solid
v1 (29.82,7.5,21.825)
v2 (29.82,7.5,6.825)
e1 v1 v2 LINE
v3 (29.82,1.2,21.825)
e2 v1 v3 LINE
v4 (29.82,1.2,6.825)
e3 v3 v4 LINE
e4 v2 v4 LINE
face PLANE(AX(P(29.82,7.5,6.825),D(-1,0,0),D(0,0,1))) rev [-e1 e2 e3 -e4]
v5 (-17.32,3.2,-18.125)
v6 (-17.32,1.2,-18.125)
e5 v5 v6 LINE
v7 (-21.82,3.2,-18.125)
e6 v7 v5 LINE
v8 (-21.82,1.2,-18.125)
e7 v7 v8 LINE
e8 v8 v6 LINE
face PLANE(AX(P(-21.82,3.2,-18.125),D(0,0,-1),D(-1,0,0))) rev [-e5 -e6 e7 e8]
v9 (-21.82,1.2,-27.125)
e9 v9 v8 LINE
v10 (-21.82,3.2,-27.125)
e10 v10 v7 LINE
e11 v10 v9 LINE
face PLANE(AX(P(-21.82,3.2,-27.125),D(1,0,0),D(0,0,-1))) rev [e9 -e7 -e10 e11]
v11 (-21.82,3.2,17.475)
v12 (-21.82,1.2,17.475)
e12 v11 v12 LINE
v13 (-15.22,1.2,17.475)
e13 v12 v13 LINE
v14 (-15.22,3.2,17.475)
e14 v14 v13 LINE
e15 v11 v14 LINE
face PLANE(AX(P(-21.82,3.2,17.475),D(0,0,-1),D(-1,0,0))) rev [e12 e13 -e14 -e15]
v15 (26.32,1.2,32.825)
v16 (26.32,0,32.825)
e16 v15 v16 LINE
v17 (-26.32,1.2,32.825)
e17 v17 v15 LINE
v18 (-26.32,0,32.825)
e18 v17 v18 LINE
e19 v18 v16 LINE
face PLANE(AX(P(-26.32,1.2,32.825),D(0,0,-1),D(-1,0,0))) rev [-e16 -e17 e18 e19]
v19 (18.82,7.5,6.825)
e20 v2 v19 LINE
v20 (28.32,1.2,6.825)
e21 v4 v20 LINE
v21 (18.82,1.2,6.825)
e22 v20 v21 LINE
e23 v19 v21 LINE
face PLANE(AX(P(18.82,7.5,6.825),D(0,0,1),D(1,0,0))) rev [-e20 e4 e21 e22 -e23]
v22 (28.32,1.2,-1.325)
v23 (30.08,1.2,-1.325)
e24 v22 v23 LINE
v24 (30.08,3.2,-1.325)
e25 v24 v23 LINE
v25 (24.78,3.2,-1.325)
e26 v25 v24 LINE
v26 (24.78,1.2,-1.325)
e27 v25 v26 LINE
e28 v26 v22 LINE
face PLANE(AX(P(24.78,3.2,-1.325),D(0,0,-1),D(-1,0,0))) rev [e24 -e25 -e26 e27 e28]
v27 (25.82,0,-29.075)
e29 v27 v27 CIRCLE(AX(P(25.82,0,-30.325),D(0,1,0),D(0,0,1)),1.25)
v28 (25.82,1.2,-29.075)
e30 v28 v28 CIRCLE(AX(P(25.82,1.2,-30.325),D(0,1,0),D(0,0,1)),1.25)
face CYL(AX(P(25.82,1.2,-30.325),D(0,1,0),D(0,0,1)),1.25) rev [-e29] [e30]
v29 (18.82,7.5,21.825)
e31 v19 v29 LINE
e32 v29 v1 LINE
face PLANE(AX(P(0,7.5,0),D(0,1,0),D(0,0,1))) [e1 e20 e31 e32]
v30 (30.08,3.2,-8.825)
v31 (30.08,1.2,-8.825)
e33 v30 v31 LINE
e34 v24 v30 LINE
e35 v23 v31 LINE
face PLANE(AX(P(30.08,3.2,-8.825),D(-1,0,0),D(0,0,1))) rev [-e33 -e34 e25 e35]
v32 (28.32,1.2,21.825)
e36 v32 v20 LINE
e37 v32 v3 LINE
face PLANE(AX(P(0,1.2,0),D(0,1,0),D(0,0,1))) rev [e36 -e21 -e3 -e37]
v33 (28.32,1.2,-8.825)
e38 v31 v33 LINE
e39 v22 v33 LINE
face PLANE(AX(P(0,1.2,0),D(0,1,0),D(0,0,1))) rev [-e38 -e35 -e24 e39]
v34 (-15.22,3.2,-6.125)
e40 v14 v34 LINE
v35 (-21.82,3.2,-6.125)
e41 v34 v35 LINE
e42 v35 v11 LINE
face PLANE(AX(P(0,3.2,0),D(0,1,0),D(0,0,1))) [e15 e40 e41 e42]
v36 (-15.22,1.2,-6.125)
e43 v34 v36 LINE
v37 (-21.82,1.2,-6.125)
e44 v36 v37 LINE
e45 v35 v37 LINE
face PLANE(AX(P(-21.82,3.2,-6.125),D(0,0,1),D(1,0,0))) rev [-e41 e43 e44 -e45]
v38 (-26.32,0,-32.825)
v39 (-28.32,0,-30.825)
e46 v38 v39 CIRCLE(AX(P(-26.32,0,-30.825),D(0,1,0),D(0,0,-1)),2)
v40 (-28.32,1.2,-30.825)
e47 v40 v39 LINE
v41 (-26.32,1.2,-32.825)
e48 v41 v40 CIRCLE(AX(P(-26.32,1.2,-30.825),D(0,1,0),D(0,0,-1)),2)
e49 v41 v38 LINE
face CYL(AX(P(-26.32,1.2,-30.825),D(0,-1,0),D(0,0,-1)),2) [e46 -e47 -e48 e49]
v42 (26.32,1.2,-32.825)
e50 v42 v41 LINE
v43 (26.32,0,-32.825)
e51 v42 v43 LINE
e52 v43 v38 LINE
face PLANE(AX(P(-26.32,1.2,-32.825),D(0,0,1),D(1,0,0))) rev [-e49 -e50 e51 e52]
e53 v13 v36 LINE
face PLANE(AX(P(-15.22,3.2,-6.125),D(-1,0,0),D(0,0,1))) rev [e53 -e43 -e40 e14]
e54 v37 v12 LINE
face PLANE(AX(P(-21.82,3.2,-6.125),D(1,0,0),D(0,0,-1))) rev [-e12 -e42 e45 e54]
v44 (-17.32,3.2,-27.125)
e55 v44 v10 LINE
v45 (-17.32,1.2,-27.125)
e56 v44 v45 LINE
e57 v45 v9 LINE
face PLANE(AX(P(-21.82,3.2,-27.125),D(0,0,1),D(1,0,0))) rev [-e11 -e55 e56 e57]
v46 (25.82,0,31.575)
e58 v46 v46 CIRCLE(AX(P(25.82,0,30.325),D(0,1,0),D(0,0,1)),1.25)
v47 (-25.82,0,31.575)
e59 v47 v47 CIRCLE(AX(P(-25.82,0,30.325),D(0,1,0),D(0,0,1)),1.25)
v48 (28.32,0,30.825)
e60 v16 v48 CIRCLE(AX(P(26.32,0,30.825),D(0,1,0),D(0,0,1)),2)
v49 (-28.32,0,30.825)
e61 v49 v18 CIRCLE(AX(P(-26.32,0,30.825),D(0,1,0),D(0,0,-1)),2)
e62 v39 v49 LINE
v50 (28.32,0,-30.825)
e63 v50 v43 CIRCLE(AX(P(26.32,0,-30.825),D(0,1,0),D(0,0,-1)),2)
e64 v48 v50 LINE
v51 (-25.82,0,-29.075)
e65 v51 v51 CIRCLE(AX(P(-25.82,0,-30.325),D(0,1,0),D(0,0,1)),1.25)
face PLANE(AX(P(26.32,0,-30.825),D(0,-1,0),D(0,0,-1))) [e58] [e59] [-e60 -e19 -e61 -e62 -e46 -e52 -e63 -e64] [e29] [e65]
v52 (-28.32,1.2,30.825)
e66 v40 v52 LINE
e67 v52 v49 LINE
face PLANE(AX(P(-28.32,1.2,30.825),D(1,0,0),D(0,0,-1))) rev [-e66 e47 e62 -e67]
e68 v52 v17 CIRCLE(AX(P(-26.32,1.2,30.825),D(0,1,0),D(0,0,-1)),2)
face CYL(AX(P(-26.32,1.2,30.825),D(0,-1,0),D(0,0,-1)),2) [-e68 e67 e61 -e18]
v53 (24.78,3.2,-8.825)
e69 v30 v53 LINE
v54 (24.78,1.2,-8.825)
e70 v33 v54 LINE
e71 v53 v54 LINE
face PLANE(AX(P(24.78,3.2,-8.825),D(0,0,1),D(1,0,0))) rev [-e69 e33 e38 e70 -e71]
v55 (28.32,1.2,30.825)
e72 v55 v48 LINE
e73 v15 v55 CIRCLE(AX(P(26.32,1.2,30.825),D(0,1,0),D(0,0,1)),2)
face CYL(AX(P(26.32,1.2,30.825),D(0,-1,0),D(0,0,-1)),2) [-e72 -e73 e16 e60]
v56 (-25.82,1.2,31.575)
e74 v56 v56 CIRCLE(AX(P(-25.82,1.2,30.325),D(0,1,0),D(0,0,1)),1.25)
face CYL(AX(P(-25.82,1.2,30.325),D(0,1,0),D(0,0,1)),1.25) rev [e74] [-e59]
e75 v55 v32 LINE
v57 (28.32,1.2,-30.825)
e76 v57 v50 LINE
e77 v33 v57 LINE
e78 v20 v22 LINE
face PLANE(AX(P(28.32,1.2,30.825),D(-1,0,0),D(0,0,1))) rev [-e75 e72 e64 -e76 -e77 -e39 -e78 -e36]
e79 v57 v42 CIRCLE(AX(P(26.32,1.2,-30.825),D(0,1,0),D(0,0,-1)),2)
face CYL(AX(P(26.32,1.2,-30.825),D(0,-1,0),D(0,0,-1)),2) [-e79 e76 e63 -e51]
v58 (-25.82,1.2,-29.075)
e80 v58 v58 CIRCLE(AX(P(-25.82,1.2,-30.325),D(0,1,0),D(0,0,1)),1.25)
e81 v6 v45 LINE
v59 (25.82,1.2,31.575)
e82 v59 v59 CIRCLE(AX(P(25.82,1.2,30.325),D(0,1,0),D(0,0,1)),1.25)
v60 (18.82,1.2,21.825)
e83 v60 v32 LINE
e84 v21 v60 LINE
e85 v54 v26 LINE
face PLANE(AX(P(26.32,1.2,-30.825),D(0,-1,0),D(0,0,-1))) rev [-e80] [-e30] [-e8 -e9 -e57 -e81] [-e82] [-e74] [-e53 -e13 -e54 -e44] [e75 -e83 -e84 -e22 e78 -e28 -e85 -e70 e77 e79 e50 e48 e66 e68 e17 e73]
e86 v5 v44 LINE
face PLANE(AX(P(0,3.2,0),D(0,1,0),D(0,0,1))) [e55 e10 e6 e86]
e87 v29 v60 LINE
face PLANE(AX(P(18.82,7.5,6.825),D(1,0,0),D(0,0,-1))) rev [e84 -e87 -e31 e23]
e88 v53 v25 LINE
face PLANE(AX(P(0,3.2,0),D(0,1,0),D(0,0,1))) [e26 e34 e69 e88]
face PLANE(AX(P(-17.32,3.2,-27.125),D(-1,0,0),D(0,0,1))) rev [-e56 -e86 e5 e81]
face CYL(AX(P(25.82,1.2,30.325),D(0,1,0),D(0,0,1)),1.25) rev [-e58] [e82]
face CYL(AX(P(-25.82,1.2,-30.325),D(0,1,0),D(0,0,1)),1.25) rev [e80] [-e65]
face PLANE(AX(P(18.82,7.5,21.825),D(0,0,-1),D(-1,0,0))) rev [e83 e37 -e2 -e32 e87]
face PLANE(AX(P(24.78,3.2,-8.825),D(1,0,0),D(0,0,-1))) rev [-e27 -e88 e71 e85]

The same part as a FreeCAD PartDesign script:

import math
import FreeCAD as App
import Part
import Sketcher
from FreeCAD import Vector


def add_polygon(sketch, points):
    """Adds a closed chain of lines whose ends are joined by coincident constraints."""
    first, n = sketch.GeometryCount, len(points)
    for a, b in zip(points, points[1:] + points[:1]):
        sketch.addGeometry(Part.LineSegment(App.Vector(*a, 0), App.Vector(*b, 0)), False)
    for i in range(n):
        sketch.addConstraint(Sketcher.Constraint("Coincident", first + i, 2, first + (i + 1) % n, 1))

doc = App.newDocument("Part")
body = doc.addObject("PartDesign::Body", "Body")

# Sketch on XZ plane
sketch1 = body.newObject("Sketcher::SketchObject", "Sketch")
sketch1.AttachmentSupport = (doc.getObject("XZ_Plane"), [""])
sketch1.MapMode = "FlatFace"
sketch1.addGeometry(Part.LineSegment(Vector(-26.3, 32.8, 0), Vector(26.3, 32.8, 0)), False)
sketch1.addGeometry(Part.ArcOfCircle(Part.Circle(Vector(26.3, 30.8, 0), Vector(0, 0, 1), 2), math.radians(0), math.radians(90)), False)
sketch1.addGeometry(Part.LineSegment(Vector(28.3, 30.8, 0), Vector(28.3, -30.8, 0)), False)
sketch1.addGeometry(Part.ArcOfCircle(Part.Circle(Vector(26.3, -30.8, 0), Vector(0, 0, 1), 2), math.radians(-90), math.radians(0)), False)
sketch1.addGeometry(Part.LineSegment(Vector(26.3, -32.8, 0), Vector(-26.3, -32.8, 0)), False)
sketch1.addGeometry(Part.ArcOfCircle(Part.Circle(Vector(-26.3, -30.8, 0), Vector(0, 0, 1), 2), math.radians(-180), math.radians(-90)), False)
sketch1.addGeometry(Part.LineSegment(Vector(-28.3, -30.8, 0), Vector(-28.3, 30.8, 0)), False)
sketch1.addGeometry(Part.ArcOfCircle(Part.Circle(Vector(-26.3, 30.8, 0), Vector(0, 0, 1), 2), math.radians(90), math.radians(180)), False)
sketch1.addConstraint(Sketcher.Constraint("Tangent", 0, 2, 1, 2))
sketch1.addConstraint(Sketcher.Constraint("Tangent", 1, 1, 2, 1))
sketch1.addConstraint(Sketcher.Constraint("Tangent", 2, 2, 3, 2))
sketch1.addConstraint(Sketcher.Constraint("Tangent", 3, 1, 4, 1))
sketch1.addConstraint(Sketcher.Constraint("Tangent", 4, 2, 5, 2))
sketch1.addConstraint(Sketcher.Constraint("Tangent", 5, 1, 6, 1))
sketch1.addConstraint(Sketcher.Constraint("Tangent", 6, 2, 7, 2))
sketch1.addConstraint(Sketcher.Constraint("Tangent", 7, 1, 0, 1))
sketch1.addConstraint(Sketcher.Constraint("Horizontal", 0))
sketch1.addConstraint(Sketcher.Constraint("Vertical", 2))
sketch1.addConstraint(Sketcher.Constraint("Horizontal", 4))
sketch1.addConstraint(Sketcher.Constraint("Vertical", 6))
sketch1.addConstraint(Sketcher.Constraint("Equal", 1, 3))
sketch1.addConstraint(Sketcher.Constraint("Equal", 3, 5))
sketch1.addConstraint(Sketcher.Constraint("Equal", 5, 7))
sketch1.addConstraint(Sketcher.Constraint("Symmetric", 1, 3, 5, 3, -1, 1))
sketch1.addConstraint(Sketcher.Constraint("Radius", 1, 2.0))
sketch1.addConstraint(Sketcher.Constraint("DistanceX", 0, 1, 0, 2, 52.64))
sketch1.addConstraint(Sketcher.Constraint("DistanceY", 2, 2, 2, 1, 61.65))
pad1 = body.newObject("PartDesign::Pad", "Pad")
pad1.Profile = sketch1
pad1.Length = 1.2
pad1.Reversed = True

# Sketch on XZ plane
sketch2 = body.newObject("Sketcher::SketchObject", "Sketch001")
sketch2.AttachmentSupport = (doc.getObject("XZ_Plane"), [""])
sketch2.MapMode = "FlatFace"
sketch2.AttachmentOffset = App.Placement(Vector(0, 0, -1.2), App.Rotation())
sketch2.addGeometry(Part.Circle(Vector(-25.8, -30.3, 0), Vector(0, 0, 1), 1.2), False)
sketch2.addGeometry(Part.Circle(Vector(-25.8, 30.3, 0), Vector(0, 0, 1), 1.2), False)
sketch2.addGeometry(Part.Circle(Vector(25.8, 30.3, 0), Vector(0, 0, 1), 1.2), False)
sketch2.addGeometry(Part.Circle(Vector(25.8, -30.3, 0), Vector(0, 0, 1), 1.2), False)
sketch2.addConstraint(Sketcher.Constraint("Equal", 0, 1))
sketch2.addConstraint(Sketcher.Constraint("Equal", 1, 2))
sketch2.addConstraint(Sketcher.Constraint("Equal", 2, 3))
sketch2.addConstraint(Sketcher.Constraint("Symmetric", 0, 3, 2, 3, -1, 1))
sketch2.addConstraint(Sketcher.Constraint("Symmetric", 1, 3, 3, 3, -1, 1))
sketch2.addConstraint(Sketcher.Constraint("Symmetric", 1, 3, 2, 3, -2))
sketch2.addConstraint(Sketcher.Constraint("Diameter", 0, 2.5))
sketch2.addConstraint(Sketcher.Constraint("DistanceX", 0, 3, -1, 1, 25.82))
sketch2.addConstraint(Sketcher.Constraint("DistanceY", 0, 3, 1, 3, 60.65))
doc.recompute()
hole = body.newObject("PartDesign::Hole", "Hole")
hole.Profile = sketch2
hole.ThreadType = "None"
hole.Diameter = 2.5
hole.DepthType = "ThroughAll"
hole.Reversed = True

# Sketch on XZ plane
sketch3 = body.newObject("Sketcher::SketchObject", "Sketch002")
sketch3.AttachmentSupport = (doc.getObject("XZ_Plane"), [""])
sketch3.MapMode = "FlatFace"
sketch3.AttachmentOffset = App.Placement(Vector(0, 0, -1.2), App.Rotation())
add_polygon(sketch3, [(-21.8, -6.1), (-21.8, 17.5), (-15.2, 17.5), (-15.2, -6.1)])  # lines 0-3
add_polygon(sketch3, [(-21.8, -27.1), (-21.8, -18.1), (-17.3, -18.1), (-17.3, -27.1)])  # lines 4-7
add_polygon(sketch3, [(24.8, -8.8), (24.8, -1.3), (30.1, -1.3), (30.1, -8.8)])  # lines 8-11
sketch3.addConstraint(Sketcher.Constraint("Vertical", 0))
sketch3.addConstraint(Sketcher.Constraint("Horizontal", 1))
sketch3.addConstraint(Sketcher.Constraint("Vertical", 2))
sketch3.addConstraint(Sketcher.Constraint("Horizontal", 3))
sketch3.addConstraint(Sketcher.Constraint("Vertical", 4))
sketch3.addConstraint(Sketcher.Constraint("Horizontal", 5))
sketch3.addConstraint(Sketcher.Constraint("Vertical", 6))
sketch3.addConstraint(Sketcher.Constraint("Horizontal", 7))
sketch3.addConstraint(Sketcher.Constraint("Vertical", 8))
sketch3.addConstraint(Sketcher.Constraint("Horizontal", 9))
sketch3.addConstraint(Sketcher.Constraint("Vertical", 10))
sketch3.addConstraint(Sketcher.Constraint("Horizontal", 11))
sketch3.addConstraint(Sketcher.Constraint("Vertical", 3, 2, 4, 2))
sketch3.addConstraint(Sketcher.Constraint("DistanceY", 4, 1, 4, 2, 9.0))
sketch3.addConstraint(Sketcher.Constraint("DistanceX", 1, 1, 1, 2, 6.6))
sketch3.addConstraint(Sketcher.Constraint("DistanceX", 5, 1, 5, 2, 4.5))
sketch3.addConstraint(Sketcher.Constraint("DistanceX", 9, 1, 9, 2, 5.3))
sketch3.addConstraint(Sketcher.Constraint("DistanceY", 0, 1, 0, 2, 23.6))
sketch3.addConstraint(Sketcher.Constraint("DistanceY", 8, 1, 8, 2, 7.5))
sketch3.addConstraint(Sketcher.Constraint("DistanceY", 4, 2, 3, 2, 12.0))
sketch3.addConstraint(Sketcher.Constraint("DistanceX", 2, 2, 8, 2, 40.0))
sketch3.addConstraint(Sketcher.Constraint("DistanceY", 2, 2, 8, 2, 4.8))
sketch3.addConstraint(Sketcher.Constraint("DistanceX", 0, 2, -1, 1, 21.82))
sketch3.addConstraint(Sketcher.Constraint("DistanceY", -1, 1, 0, 2, 17.475))
pad2 = body.newObject("PartDesign::Pad", "Pad001")
pad2.Profile = sketch3
pad2.Length = 2
pad2.Reversed = True

# Sketch on XZ plane
sketch4 = body.newObject("Sketcher::SketchObject", "Sketch003")
sketch4.AttachmentSupport = (doc.getObject("XZ_Plane"), [""])
sketch4.MapMode = "FlatFace"
sketch4.AttachmentOffset = App.Placement(Vector(0, 0, -1.2), App.Rotation())
add_polygon(sketch4, [(19, 7), (19, 22), (30, 22), (30, 7)])  # lines 0-3
sketch4.addConstraint(Sketcher.Constraint("Vertical", 0))
sketch4.addConstraint(Sketcher.Constraint("Horizontal", 1))
sketch4.addConstraint(Sketcher.Constraint("Vertical", 2))
sketch4.addConstraint(Sketcher.Constraint("Horizontal", 3))
sketch4.addConstraint(Sketcher.Constraint("DistanceX", 1, 1, 1, 2, 11.0))
sketch4.addConstraint(Sketcher.Constraint("DistanceY", 0, 1, 0, 2, 15.0))
sketch4.addConstraint(Sketcher.Constraint("DistanceX", -1, 1, 0, 2, 18.82))
sketch4.addConstraint(Sketcher.Constraint("DistanceY", -1, 1, 0, 2, 21.825))
pad3 = body.newObject("PartDesign::Pad", "Pad002")
pad3.Profile = sketch4
pad3.Length = 6.3
pad3.Reversed = True

doc.recompute()
